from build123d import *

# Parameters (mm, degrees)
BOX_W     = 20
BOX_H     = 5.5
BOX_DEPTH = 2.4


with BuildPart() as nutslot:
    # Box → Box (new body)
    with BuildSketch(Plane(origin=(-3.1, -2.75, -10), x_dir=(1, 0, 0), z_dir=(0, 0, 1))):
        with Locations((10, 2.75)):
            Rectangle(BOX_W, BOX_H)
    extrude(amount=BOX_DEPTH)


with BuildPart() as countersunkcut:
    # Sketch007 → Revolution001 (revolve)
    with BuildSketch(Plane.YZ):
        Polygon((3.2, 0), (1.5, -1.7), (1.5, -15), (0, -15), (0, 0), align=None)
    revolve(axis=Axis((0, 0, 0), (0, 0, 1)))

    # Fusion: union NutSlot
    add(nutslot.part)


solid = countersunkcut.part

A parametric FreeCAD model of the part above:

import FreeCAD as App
import Part
import Sketcher
from FreeCAD import Vector
Q = App.Units.Quantity

doc = App.newDocument("Part")
params = doc.addObject("Spreadsheet::Sheet", "Params")
for row, (alias, value) in enumerate([
    ("sketch1_width", "20 mm"),
    ("sketch1_height", "5.5 mm"),
    ("pad1_length", "2.4 mm"),
    ("sketch2_height", "15 mm"),
    ("sketch2_width", "3.2 mm"),
    ("sketch2_width2", "1.5 mm"),
    ("revolution_angle", "360 deg"),
], start=1):
    params.set(f"A{row}", alias)
    params.set(f"B{row}", "=" + value)
    params.setAlias(f"B{row}", alias)

body = doc.addObject("PartDesign::Body", "Body")

# Sketch on XY plane
sketch1 = body.newObject("Sketcher::SketchObject", "Sketch")
sketch1.AttachmentSupport = (doc.getObject("XY_Plane"), [""])
sketch1.MapMode = "FlatFace"
sketch1.AttachmentOffset = App.Placement(Vector(0, 0, -10), App.Rotation())
sketch1.addGeometry([
    Part.LineSegment(Vector(-3, 3, 0), Vector(-3, -3, 0)),
    Part.LineSegment(Vector(-3, -3, 0), Vector(17, -3, 0)),
    Part.LineSegment(Vector(17, -3, 0), Vector(17, 3, 0)),
    Part.LineSegment(Vector(17, 3, 0), Vector(-3, 3, 0)),
], False)
sketch1.addConstraint([
    Sketcher.Constraint("Coincident", 0, 2, 1, 1),
    Sketcher.Constraint("Coincident", 1, 2, 2, 1),
    Sketcher.Constraint("Coincident", 2, 2, 3, 1),
    Sketcher.Constraint("Coincident", 3, 2, 0, 1),
    Sketcher.Constraint("Vertical", 0),
    Sketcher.Constraint("Horizontal", 1),
    Sketcher.Constraint("Vertical", 2),
    Sketcher.Constraint("Horizontal", 3),
    Sketcher.Constraint("DistanceX", 1, 1, 1, 2, Q("20 mm")),
    Sketcher.Constraint("DistanceY", 0, 2, 0, 1, Q("5.5 mm")),
    Sketcher.Constraint("DistanceX", 0, 2, -1, 1, Q("3.1 mm")),
    Sketcher.Constraint("DistanceY", 0, 2, -1, 1, Q("2.75 mm")),
])
sketch1.setExpression("Constraints[8]", "Params.sketch1_width")
sketch1.setExpression("Constraints[9]", "Params.sketch1_height")
pad1 = body.newObject("PartDesign::Pad", "Pad")
pad1.Profile = sketch1
pad1.setExpression("Length", "Params.pad1_length")
body2 = doc.addObject("PartDesign::Body", "Body001")

# Sketch on YZ plane
sketch2 = body2.newObject("Sketcher::SketchObject", "Sketch001")
sketch2.AttachmentSupport = (doc.getObject("YZ_Plane001"), [""])
sketch2.MapMode = "FlatFace"
sketch2.addGeometry([
    Part.LineSegment(Vector(1.5, -1.7, 0), Vector(3.2, 0, 0)),  # 0
    Part.LineSegment(Vector(3.2, 0, 0), Vector(0, 0, 0)),  # 1
    Part.LineSegment(Vector(0, 0, 0), Vector(0, -15, 0)),  # 2
    Part.LineSegment(Vector(0, -15, 0), Vector(1.5, -15, 0)),  # 3
    Part.LineSegment(Vector(1.5, -15, 0), Vector(1.5, -1.7, 0)),  # 4
], False)
sketch2.addConstraint([
    Sketcher.Constraint("Coincident", 0, 2, 1, 1),
    Sketcher.Constraint("Coincident", 1, 2, 2, 1),
    Sketcher.Constraint("Coincident", 2, 2, 3, 1),
    Sketcher.Constraint("Coincident", 3, 2, 4, 1),
    Sketcher.Constraint("Coincident", 4, 2, 0, 1),
    Sketcher.Constraint("Horizontal", 1),
    Sketcher.Constraint("Vertical", 2),
    Sketcher.Constraint("Horizontal", 3),
    Sketcher.Constraint("Vertical", 4),
    Sketcher.Constraint("Coincident", 1, 2, -1, 1),
    Sketcher.Constraint("DistanceY", 2, 2, 2, 1, Q("15 mm")),
    Sketcher.Constraint("Angle", 0, Q("45 deg")),
    Sketcher.Constraint("DistanceX", 1, 2, 1, 1, Q("3.2 mm")),
    Sketcher.Constraint("DistanceX", 3, 1, 3, 2, Q("1.5 mm")),
])
sketch2.setExpression("Constraints[10]", "Params.sketch2_height")
sketch2.setExpression("Constraints[12]", "Params.sketch2_width")
sketch2.setExpression("Constraints[13]", "Params.sketch2_width2")
revolution = body2.newObject("PartDesign::Revolution", "Revolution")
revolution.Profile = sketch2
revolution.ReferenceAxis = (sketch2, ["V_Axis"])
revolution.setExpression("Angle", "Params.revolution_angle")
doc.recompute()

boolean = body2.newObject("PartDesign::Boolean", "Boolean")
boolean.Type = "Fuse"
boolean.addObjects([body])

doc.recompute()
